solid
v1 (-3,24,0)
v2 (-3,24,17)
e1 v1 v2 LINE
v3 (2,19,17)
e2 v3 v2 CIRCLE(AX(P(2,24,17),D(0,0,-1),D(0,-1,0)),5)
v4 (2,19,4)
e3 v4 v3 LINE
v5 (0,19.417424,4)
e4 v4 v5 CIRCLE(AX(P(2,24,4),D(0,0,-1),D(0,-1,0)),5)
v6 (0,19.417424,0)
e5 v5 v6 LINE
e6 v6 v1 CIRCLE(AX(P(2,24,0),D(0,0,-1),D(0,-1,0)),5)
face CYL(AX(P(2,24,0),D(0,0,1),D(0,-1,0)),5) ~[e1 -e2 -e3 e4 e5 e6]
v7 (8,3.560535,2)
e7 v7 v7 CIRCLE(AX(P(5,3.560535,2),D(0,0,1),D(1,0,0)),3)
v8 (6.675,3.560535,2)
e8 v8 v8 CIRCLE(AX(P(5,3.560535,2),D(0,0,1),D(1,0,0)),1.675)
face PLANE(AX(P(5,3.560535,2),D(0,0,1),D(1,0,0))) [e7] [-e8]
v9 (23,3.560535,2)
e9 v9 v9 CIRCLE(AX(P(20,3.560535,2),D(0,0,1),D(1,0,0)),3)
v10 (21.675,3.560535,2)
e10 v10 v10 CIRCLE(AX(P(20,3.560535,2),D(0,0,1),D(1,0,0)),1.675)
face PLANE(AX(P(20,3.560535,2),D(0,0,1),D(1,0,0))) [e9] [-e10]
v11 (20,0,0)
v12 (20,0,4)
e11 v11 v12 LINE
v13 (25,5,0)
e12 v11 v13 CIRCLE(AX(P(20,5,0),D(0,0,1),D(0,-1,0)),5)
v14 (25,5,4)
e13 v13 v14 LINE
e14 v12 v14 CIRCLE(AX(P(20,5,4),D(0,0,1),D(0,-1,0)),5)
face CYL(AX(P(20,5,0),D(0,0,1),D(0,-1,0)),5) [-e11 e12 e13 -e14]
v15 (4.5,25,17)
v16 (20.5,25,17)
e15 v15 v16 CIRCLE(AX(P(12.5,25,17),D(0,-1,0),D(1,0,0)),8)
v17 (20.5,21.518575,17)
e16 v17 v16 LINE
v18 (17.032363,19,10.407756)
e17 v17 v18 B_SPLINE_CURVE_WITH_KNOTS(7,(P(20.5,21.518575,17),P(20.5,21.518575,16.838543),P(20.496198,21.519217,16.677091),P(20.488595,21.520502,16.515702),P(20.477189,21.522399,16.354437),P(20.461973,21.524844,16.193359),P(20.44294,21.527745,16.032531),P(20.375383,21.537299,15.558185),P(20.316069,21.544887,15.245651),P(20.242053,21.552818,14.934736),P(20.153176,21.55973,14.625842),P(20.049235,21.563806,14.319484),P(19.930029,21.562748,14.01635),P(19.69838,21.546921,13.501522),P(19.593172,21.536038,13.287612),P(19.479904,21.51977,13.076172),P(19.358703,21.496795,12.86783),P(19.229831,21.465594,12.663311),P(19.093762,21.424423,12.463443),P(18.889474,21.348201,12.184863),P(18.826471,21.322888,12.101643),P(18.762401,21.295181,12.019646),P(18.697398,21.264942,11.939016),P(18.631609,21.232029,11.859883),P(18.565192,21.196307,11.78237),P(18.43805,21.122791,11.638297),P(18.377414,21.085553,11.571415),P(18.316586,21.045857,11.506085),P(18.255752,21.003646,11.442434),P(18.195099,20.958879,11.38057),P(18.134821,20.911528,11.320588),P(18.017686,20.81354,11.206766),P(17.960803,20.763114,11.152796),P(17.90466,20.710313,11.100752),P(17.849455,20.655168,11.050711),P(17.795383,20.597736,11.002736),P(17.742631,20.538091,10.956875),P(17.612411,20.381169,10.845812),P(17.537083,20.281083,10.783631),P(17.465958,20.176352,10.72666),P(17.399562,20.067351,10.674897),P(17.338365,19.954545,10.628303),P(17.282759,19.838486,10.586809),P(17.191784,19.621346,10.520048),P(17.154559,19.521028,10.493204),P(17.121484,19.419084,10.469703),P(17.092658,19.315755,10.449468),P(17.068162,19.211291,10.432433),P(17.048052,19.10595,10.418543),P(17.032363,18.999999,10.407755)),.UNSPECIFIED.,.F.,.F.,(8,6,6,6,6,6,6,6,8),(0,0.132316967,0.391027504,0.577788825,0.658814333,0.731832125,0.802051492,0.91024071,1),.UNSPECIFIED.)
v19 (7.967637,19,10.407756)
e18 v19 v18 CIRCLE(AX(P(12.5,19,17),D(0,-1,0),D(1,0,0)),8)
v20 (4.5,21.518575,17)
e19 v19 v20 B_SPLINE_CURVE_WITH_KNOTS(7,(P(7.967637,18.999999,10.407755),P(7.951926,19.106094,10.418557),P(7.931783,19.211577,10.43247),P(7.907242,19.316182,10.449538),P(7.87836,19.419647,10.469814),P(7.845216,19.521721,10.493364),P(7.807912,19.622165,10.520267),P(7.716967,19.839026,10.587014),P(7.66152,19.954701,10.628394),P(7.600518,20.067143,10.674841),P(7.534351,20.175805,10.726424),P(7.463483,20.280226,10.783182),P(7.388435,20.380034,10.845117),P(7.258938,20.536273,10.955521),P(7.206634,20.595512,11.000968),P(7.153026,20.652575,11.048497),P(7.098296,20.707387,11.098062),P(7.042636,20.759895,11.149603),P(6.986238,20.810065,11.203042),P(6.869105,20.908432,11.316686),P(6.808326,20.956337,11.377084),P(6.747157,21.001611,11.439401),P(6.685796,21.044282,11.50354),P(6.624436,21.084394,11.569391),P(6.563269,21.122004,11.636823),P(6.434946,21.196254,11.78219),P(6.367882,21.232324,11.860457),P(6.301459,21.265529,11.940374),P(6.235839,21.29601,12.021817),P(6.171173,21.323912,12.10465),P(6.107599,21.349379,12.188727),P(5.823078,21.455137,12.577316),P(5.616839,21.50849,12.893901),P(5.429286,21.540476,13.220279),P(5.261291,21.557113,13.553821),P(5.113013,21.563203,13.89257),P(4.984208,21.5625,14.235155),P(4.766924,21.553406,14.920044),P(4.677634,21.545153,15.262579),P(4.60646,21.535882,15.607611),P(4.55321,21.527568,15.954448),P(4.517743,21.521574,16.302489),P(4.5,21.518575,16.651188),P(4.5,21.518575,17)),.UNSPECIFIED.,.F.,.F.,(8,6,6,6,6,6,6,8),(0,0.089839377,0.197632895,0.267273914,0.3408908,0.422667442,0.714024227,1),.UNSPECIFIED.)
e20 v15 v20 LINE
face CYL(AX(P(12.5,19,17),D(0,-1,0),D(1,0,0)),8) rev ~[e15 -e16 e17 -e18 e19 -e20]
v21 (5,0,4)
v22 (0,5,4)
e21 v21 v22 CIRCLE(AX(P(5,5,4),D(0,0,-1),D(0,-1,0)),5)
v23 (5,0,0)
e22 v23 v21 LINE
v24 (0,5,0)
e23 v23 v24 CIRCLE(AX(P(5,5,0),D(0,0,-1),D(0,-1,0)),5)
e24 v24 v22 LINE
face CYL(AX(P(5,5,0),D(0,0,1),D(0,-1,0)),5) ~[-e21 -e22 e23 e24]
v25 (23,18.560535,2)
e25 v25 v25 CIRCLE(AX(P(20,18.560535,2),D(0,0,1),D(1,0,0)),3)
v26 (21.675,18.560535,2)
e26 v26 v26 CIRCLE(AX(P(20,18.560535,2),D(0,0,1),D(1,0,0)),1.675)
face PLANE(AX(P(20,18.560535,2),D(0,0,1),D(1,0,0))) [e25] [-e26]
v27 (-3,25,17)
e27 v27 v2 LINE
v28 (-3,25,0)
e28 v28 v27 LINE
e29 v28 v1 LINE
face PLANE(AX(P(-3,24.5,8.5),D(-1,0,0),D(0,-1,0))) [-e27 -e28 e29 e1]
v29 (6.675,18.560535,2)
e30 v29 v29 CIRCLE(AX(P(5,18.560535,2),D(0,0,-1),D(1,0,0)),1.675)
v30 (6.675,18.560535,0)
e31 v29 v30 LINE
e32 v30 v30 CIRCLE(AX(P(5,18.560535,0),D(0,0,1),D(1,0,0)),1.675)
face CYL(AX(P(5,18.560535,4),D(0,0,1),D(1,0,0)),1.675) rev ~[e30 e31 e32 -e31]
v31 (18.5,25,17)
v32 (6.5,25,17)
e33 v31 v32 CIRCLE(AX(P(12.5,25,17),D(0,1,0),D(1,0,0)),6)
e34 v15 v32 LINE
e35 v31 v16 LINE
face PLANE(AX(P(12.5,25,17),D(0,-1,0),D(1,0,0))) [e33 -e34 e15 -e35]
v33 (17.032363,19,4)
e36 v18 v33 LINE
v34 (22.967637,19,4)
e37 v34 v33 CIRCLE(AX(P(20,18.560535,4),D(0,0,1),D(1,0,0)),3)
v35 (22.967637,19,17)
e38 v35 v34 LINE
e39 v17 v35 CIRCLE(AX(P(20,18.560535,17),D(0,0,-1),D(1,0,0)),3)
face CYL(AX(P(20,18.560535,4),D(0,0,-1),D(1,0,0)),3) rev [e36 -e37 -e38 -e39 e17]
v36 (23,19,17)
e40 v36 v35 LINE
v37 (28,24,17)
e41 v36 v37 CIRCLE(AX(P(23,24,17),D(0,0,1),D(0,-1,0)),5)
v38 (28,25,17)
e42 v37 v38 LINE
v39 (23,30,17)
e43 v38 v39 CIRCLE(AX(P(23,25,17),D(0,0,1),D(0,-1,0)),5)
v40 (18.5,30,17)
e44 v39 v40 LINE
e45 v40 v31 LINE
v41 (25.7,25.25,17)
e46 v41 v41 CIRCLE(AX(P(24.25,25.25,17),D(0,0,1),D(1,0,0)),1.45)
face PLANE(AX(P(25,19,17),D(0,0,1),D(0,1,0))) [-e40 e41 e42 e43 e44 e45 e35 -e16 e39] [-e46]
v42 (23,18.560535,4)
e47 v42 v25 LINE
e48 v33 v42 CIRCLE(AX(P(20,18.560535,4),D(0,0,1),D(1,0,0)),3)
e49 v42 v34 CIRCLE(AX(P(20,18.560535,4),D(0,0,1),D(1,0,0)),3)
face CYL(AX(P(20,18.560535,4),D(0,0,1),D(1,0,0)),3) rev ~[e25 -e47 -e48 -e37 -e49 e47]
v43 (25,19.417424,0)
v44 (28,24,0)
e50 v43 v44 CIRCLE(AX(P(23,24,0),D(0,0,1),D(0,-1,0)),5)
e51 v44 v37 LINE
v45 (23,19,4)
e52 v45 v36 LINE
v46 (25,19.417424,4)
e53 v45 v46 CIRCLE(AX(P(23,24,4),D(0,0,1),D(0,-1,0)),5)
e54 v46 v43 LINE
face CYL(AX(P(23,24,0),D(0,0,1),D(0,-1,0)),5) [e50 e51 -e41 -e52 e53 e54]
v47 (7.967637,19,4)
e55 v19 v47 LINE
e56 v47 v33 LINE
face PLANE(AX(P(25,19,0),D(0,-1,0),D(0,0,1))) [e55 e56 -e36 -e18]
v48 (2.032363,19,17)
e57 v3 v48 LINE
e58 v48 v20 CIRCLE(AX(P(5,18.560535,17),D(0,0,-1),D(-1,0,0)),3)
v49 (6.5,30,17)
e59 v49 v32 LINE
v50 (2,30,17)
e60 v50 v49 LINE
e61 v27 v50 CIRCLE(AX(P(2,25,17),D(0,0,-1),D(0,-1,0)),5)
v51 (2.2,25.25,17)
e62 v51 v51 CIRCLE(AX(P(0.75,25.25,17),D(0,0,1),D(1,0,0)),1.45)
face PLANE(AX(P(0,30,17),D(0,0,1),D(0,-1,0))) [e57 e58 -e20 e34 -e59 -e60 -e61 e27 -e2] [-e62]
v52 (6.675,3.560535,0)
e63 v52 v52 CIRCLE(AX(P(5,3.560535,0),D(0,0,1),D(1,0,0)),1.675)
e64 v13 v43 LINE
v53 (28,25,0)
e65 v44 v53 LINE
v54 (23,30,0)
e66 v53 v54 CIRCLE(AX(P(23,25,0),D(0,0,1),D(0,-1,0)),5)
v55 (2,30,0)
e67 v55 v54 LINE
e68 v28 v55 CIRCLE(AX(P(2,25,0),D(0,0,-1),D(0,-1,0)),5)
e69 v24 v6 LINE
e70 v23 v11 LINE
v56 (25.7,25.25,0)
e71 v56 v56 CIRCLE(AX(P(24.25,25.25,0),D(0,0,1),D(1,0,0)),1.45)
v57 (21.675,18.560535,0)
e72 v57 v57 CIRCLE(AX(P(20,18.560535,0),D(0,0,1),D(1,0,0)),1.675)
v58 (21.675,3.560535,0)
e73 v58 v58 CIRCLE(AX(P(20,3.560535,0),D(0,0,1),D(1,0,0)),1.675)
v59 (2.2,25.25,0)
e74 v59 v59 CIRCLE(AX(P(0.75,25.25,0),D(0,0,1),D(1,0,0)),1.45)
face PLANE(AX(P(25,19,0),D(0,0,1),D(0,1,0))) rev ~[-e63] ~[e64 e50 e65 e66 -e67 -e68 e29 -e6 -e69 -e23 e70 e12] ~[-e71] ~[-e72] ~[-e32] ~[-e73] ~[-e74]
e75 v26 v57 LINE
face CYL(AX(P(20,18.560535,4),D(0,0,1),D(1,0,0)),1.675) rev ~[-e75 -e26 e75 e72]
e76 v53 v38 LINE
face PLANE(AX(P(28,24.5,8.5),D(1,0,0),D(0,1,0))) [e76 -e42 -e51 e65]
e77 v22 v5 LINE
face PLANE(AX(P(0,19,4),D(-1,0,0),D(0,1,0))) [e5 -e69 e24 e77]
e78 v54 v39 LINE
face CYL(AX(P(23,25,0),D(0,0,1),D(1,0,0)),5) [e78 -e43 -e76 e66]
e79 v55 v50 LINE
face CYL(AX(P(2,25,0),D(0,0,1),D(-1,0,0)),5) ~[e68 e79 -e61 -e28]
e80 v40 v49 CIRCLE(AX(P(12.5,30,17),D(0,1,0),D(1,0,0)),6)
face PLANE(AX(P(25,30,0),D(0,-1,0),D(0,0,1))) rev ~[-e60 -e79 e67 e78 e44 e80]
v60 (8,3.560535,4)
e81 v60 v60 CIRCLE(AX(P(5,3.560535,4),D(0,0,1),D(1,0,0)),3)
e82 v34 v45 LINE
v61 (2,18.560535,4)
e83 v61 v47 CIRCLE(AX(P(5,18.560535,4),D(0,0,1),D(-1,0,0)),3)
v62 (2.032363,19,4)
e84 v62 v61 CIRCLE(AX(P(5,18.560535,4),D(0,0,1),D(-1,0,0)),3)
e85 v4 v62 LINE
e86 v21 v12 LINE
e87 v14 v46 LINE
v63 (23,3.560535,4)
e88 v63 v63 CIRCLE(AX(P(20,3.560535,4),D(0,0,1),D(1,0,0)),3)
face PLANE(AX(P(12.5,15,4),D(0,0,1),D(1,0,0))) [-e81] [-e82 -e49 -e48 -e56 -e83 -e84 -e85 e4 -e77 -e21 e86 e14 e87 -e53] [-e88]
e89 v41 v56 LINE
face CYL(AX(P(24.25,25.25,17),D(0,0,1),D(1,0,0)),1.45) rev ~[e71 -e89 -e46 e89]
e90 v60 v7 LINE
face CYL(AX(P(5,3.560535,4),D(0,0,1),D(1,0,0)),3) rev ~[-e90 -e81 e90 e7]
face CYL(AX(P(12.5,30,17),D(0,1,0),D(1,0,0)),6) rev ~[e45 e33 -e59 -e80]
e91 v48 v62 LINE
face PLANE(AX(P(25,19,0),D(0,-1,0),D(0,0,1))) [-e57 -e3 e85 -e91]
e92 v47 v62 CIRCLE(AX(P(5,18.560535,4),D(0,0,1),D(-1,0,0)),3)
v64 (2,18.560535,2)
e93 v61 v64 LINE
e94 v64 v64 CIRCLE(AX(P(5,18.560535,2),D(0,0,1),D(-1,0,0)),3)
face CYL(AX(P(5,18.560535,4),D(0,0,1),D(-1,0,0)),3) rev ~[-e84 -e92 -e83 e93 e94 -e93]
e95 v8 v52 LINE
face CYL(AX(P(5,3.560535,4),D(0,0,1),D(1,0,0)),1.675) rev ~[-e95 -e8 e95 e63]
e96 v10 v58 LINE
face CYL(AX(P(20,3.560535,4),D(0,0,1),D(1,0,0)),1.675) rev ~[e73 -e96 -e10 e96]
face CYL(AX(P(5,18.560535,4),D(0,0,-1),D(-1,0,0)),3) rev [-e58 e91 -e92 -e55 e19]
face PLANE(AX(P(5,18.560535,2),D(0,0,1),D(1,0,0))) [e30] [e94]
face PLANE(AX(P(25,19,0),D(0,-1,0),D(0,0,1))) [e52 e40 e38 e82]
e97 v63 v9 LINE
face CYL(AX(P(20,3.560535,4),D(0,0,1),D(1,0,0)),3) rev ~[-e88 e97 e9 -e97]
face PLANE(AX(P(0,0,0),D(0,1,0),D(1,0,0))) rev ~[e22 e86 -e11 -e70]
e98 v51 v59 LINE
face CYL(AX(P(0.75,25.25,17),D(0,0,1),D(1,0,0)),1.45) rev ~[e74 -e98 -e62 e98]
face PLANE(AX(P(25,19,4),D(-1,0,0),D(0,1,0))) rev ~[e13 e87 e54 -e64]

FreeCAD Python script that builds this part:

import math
import FreeCAD as App
import Part
import Sketcher
Q = App.Units.Quantity


def edges_at(feature, points):
    """Names of the edges that pass closest to the given points."""
    edges = feature.Shape.Edges
    near = lambda p: min(range(len(edges)), key=lambda i: edges[i].distToShape(Part.Vertex(*p))[0])
    return sorted({f"Edge{near(p) + 1}" for p in points})


def add_polygon(sketch, points):
    """Adds a closed chain of lines whose ends are joined by coincident constraints."""
    first, n = sketch.GeometryCount, len(points)
    for a, b in zip(points, points[1:] + points[:1]):
        sketch.addGeometry(Part.LineSegment(App.Vector(*a, 0), App.Vector(*b, 0)), False)
    for i in range(n):
        sketch.addConstraint(Sketcher.Constraint("Coincident", first + i, 2, first + (i + 1) % n, 1))

doc = App.newDocument("Part")
body = doc.addObject("PartDesign::Body", "Body")

# Sketch on XY plane
sketch1 = body.newObject("Sketcher::SketchObject", "Sketch")
sketch1.AttachmentSupport = (doc.getObject("XY_Plane"), [""])
sketch1.MapMode = "FlatFace"
add_polygon(sketch1, [(0, 30), (0, 0), (25, 0), (25, 30)])  # lines 0-3
sketch1.addConstraint([
    Sketcher.Constraint("Vertical", 0),
    Sketcher.Constraint("Horizontal", 1),
    Sketcher.Constraint("Vertical", 2),
    Sketcher.Constraint("Horizontal", 3),
    Sketcher.Constraint("Coincident", 0, 2, -1, 1),
    Sketcher.Constraint("DistanceX", 1, 1, 1, 2, Q("25 mm")),
    Sketcher.Constraint("DistanceY", 0, 2, 0, 1, Q("30 mm")),
])
pad1 = body.newObject("PartDesign::Pad", "Pad")
pad1.Profile = sketch1
pad1.Length = 4

# Sketch on XY plane
sketch2 = body.newObject("Sketcher::SketchObject", "Sketch001")
sketch2.AttachmentSupport = (doc.getObject("XY_Plane"), [""])
sketch2.MapMode = "FlatFace"
sketch2.AttachmentOffset = App.Placement(App.Vector(0, 0, 4), App.Rotation())
sketch2.addGeometry([
    Part.Circle(App.Vector(5, 18.6, 0), App.Vector(0, 0, 1), 1.7),
    Part.Circle(App.Vector(20, 18.6, 0), App.Vector(0, 0, 1), 1.7),
    Part.Circle(App.Vector(20, 3.6, 0), App.Vector(0, 0, 1), 1.7),
    Part.Circle(App.Vector(5, 3.6, 0), App.Vector(0, 0, 1), 1.7),
], False)
sketch2.addConstraint([
    Sketcher.Constraint("Equal", 0, 1),
    Sketcher.Constraint("Equal", 1, 2),
    Sketcher.Constraint("Equal", 2, 3),
    Sketcher.Constraint("Horizontal", 0, 3, 1, 3),
    Sketcher.Constraint("Horizontal", 2, 3, 3, 3),
    Sketcher.Constraint("Vertical", 1, 3, 2, 3),
    Sketcher.Constraint("Vertical", 0, 3, 3, 3),
    Sketcher.Constraint("Diameter", 0, Q("3.35 mm")),
    Sketcher.Constraint("DistanceX", -1, 1, 0, 3, Q("5 mm")),
    Sketcher.Constraint("DistanceX", -1, 1, 1, 3, Q("20 mm")),
    Sketcher.Constraint("DistanceY", 2, 3, 1, 3, Q("15 mm")),
    Sketcher.Constraint("DistanceY", -1, 1, 0, 3, Q("18.560535 mm")),
])
pocket1 = body.newObject("PartDesign::Pocket", "Pocket")
pocket1.Profile = sketch2
pocket1.Length = 25

# Sketch on XY plane
sketch3 = body.newObject("Sketcher::SketchObject", "Sketch002")
sketch3.AttachmentSupport = (doc.getObject("XY_Plane"), [""])
sketch3.MapMode = "FlatFace"
sketch3.AttachmentOffset = App.Placement(App.Vector(0, 0, 4), App.Rotation())
add_polygon(sketch3, [(0, 30), (0, 19), (25, 19), (25, 30)])  # lines 0-3
sketch3.addConstraint([
    Sketcher.Constraint("Vertical", 0),
    Sketcher.Constraint("Horizontal", 1),
    Sketcher.Constraint("Vertical", 2),
    Sketcher.Constraint("Horizontal", 3),
    Sketcher.Constraint("PointOnObject", 0, 2, -2),
    Sketcher.Constraint("DistanceX", 1, 1, 1, 2, Q("25 mm")),
    Sketcher.Constraint("DistanceY", 0, 2, 0, 1, Q("11 mm")),
    Sketcher.Constraint("DistanceY", -1, 1, 0, 2, Q("19 mm")),
])
pad2 = body.newObject("PartDesign::Pad", "Pad001")
pad2.Profile = sketch3
pad2.Length = 13

# Sketch on XZ plane
sketch4 = body.newObject("Sketcher::SketchObject", "Sketch003")
sketch4.AttachmentSupport = (doc.getObject("XZ_Plane"), [""])
sketch4.MapMode = "FlatFace"
sketch4.AttachmentOffset = App.Placement(App.Vector(0, 0, -30), App.Rotation())
sketch4.addGeometry([
    Part.ArcOfCircle(Part.Circle(App.Vector(12, 17, 0), App.Vector(0, 0, 1), 6), math.radians(180), math.radians(360)),
    Part.LineSegment(App.Vector(6, 17, 0), App.Vector(18, 17, 0)),
], False)
sketch4.addConstraint([
    Sketcher.Constraint("Coincident", 0, 1, 1, 1),
    Sketcher.Constraint("Coincident", 1, 2, 0, 2),
    Sketcher.Constraint("Horizontal", 1),
    Sketcher.Constraint("Radius", 0, Q("6 mm")),
    Sketcher.Constraint("DistanceY", -1, 1, 0, 3, Q("17 mm")),
    Sketcher.Constraint("DistanceY", -1, 1, 0, 1, Q("17 mm")),
    Sketcher.Constraint("DistanceX", -1, 1, 0, 3, Q("12.5 mm")),
])
pocket2 = body.newObject("PartDesign::Pocket", "Pocket001")
pocket2.Profile = sketch4
pocket2.Length = 6
pocket2.Reversed = True

# Sketch on XZ plane
sketch5 = body.newObject("Sketcher::SketchObject", "Sketch004")
sketch5.AttachmentSupport = (doc.getObject("XZ_Plane"), [""])
sketch5.MapMode = "FlatFace"
sketch5.AttachmentOffset = App.Placement(App.Vector(0, 0, -19), App.Rotation())
sketch5.addGeometry(Part.Circle(App.Vector(12, 17, 0), App.Vector(0, 0, 1), 8), False)
sketch5.addConstraint([
    Sketcher.Constraint("Diameter", 0, Q("16 mm")),
    Sketcher.Constraint("DistanceY", -1, 1, 0, 3, Q("17 mm")),
    Sketcher.Constraint("DistanceX", -1, 1, 0, 3, Q("12.5 mm")),
])
pocket3 = body.newObject("PartDesign::Pocket", "Pocket002")
pocket3.Profile = sketch5
pocket3.Length = 6

# Sketch on XY plane
sketch6 = body.newObject("Sketcher::SketchObject", "Sketch005")
sketch6.AttachmentSupport = (doc.getObject("XY_Plane"), [""])
sketch6.MapMode = "FlatFace"
sketch6.AttachmentOffset = App.Placement(App.Vector(0, 0, 4), App.Rotation())
sketch6.addGeometry([
    Part.Circle(App.Vector(5, 18.6, 0), App.Vector(0, 0, 1), 3),  # 0
    Part.Circle(App.Vector(5, 18.6, 0), App.Vector(0, 0, 1), 1.7),  # 1
    Part.Circle(App.Vector(20, 18.6, 0), App.Vector(0, 0, 1), 3),  # 2
    Part.Circle(App.Vector(20, 18.6, 0), App.Vector(0, 0, 1), 1.7),  # 3
    Part.Circle(App.Vector(20, 3.6, 0), App.Vector(0, 0, 1), 3),  # 4
    Part.Circle(App.Vector(20, 3.6, 0), App.Vector(0, 0, 1), 1.7),  # 5
    Part.Circle(App.Vector(5, 3.6, 0), App.Vector(0, 0, 1), 3),  # 6
    Part.Circle(App.Vector(5, 3.6, 0), App.Vector(0, 0, 1), 1.7),  # 7
], False)
sketch6.addConstraint([
    Sketcher.Constraint("Coincident", 1, 3, 0, 3),
    Sketcher.Constraint("Coincident", 3, 3, 2, 3),
    Sketcher.Constraint("Coincident", 5, 3, 4, 3),
    Sketcher.Constraint("Coincident", 7, 3, 6, 3),
    Sketcher.Constraint("Equal", 0, 2),
    Sketcher.Constraint("Equal", 1, 3),
    Sketcher.Constraint("Equal", 2, 4),
    Sketcher.Constraint("Equal", 3, 5),
    Sketcher.Constraint("Equal", 4, 6),
    Sketcher.Constraint("Equal", 5, 7),
    Sketcher.Constraint("Horizontal", 1, 3, 2, 3),
    Sketcher.Constraint("Horizontal", 5, 3, 6, 3),
    Sketcher.Constraint("Vertical", 3, 3, 4, 3),
    Sketcher.Constraint("Vertical", 1, 3, 6, 3),
    Sketcher.Constraint("Diameter", 0, Q("6 mm")),
    Sketcher.Constraint("Diameter", 1, Q("3.35 mm")),
    Sketcher.Constraint("DistanceX", -1, 1, 0, 3, Q("5 mm")),
    Sketcher.Constraint("DistanceX", -1, 1, 2, 3, Q("20 mm")),
    Sketcher.Constraint("DistanceY", 4, 3, 2, 3, Q("15 mm")),
    Sketcher.Constraint("DistanceY", -1, 1, 0, 3, Q("18.560535 mm")),
])
pocket4 = body.newObject("PartDesign::Pocket", "Pocket003")
pocket4.Profile = sketch6
pocket4.Length = 2

# Sketch on YZ plane
sketch7 = body.newObject("Sketcher::SketchObject", "Sketch006")
sketch7.AttachmentSupport = (doc.getObject("YZ_Plane"), [""])
sketch7.MapMode = "FlatFace"
add_polygon(sketch7, [(30, 17), (30, 0), (19, 0), (19, 17)])  # lines 0-3
sketch7.addConstraint([
    Sketcher.Constraint("Vertical", 0),
    Sketcher.Constraint("Horizontal", 1),
    Sketcher.Constraint("Vertical", 2),
    Sketcher.Constraint("Horizontal", 3),
    Sketcher.Constraint("PointOnObject", 0, 2, -1),
    Sketcher.Constraint("DistanceX", 1, 2, 1, 1, Q("11 mm")),
    Sketcher.Constraint("DistanceY", 0, 2, 0, 1, Q("17 mm")),
    Sketcher.Constraint("DistanceX", -1, 1, 0, 2, Q("30 mm")),
])
pad3 = body.newObject("PartDesign::Pad", "Pad002")
pad3.Profile = sketch7
pad3.Length = 3
pad3.Reversed = True
doc.recompute()

fillet = body.newObject("PartDesign::Fillet", "Fillet")
fillet.Base = (pad3, edges_at(pad3, [(0, 0, 2), (25, 0, 2)]))
fillet.Radius = 5

# Sketch on YZ plane
sketch8 = body.newObject("Sketcher::SketchObject", "Sketch007")
sketch8.AttachmentSupport = (doc.getObject("YZ_Plane"), [""])
sketch8.MapMode = "FlatFace"
sketch8.AttachmentOffset = App.Placement(App.Vector(0, 0, 25), App.Rotation())
add_polygon(sketch8, [(19, 17), (19, 0), (30, 0), (30, 17)])  # lines 0-3
sketch8.addConstraint([
    Sketcher.Constraint("Vertical", 0),
    Sketcher.Constraint("Horizontal", 1),
    Sketcher.Constraint("Vertical", 2),
    Sketcher.Constraint("Horizontal", 3),
    Sketcher.Constraint("PointOnObject", 0, 2, -1),
    Sketcher.Constraint("DistanceX", 1, 1, 1, 2, Q("11 mm")),
    Sketcher.Constraint("DistanceY", 0, 2, 0, 1, Q("17 mm")),
    Sketcher.Constraint("DistanceX", -1, 1, 0, 2, Q("19 mm")),
])
pad4 = body.newObject("PartDesign::Pad", "Pad003")
pad4.Profile = sketch8
pad4.Length = 3

# Sketch on XY plane
sketch9 = body.newObject("Sketcher::SketchObject", "Sketch008")
sketch9.AttachmentSupport = (doc.getObject("XY_Plane"), [""])
sketch9.MapMode = "FlatFace"
sketch9.AttachmentOffset = App.Placement(App.Vector(0, 0, 17), App.Rotation())
sketch9.addGeometry([
    Part.Circle(App.Vector(0.8, 25.2, 0), App.Vector(0, 0, 1), 1.4),
    Part.Circle(App.Vector(24.3, 25.2, 0), App.Vector(0, 0, 1), 1.4),
], False)
sketch9.addConstraint([
    Sketcher.Constraint("Equal", 0, 1),
    Sketcher.Constraint("Horizontal", 0, 3, 1, 3),
    Sketcher.Constraint("Diameter", 0, Q("2.9 mm")),
    Sketcher.Constraint("DistanceX", 0, 3, 1, 3, Q("23.5 mm")),
    Sketcher.Constraint("DistanceX", -1, 1, 0, 3, Q("0.75 mm")),
    Sketcher.Constraint("DistanceY", -1, 1, 0, 3, Q("25.25 mm")),
])
pocket5 = body.newObject("PartDesign::Pocket", "Pocket004")
pocket5.Profile = sketch9
pocket5.Length = 25
doc.recompute()

fillet2 = body.newObject("PartDesign::Fillet", "Fillet001")
fillet2.Base = (pocket5, edges_at(pocket5, [
    (-3, 19, 8.5),
    (28, 19, 8.5),
    (28, 30, 8.5),
    (-3, 30, 8.5),
]))
fillet2.Radius = 5

# Sketch on XY plane
sketch10 = body.newObject("Sketcher::SketchObject", "Sketch009")
sketch10.AttachmentSupport = (doc.getObject("XY_Plane"), [""])
sketch10.MapMode = "FlatFace"
sketch10.AttachmentOffset = App.Placement(App.Vector(0, 0, 4), App.Rotation())
sketch10.addGeometry([
    Part.Circle(App.Vector(5, 18.6, 0), App.Vector(0, 0, 1), 3),
    Part.Circle(App.Vector(20, 18.6, 0), App.Vector(0, 0, 1), 3),
], False)
sketch10.addConstraint([
    Sketcher.Constraint("Equal", 0, 1),
    Sketcher.Constraint("Horizontal", 0, 3, 1, 3),
    Sketcher.Constraint("Diameter", 0, Q("6 mm")),
    Sketcher.Constraint("DistanceX", -1, 1, 0, 3, Q("5 mm")),
    Sketcher.Constraint("DistanceX", -1, 1, 1, 3, Q("20 mm")),
    Sketcher.Constraint("DistanceY", -1, 1, 0, 3, Q("18.560535 mm")),
])
pocket6 = body.newObject("PartDesign::Pocket", "Pocket005")
pocket6.Profile = sketch10
pocket6.Length = 25
pocket6.Reversed = True

doc.recompute()
